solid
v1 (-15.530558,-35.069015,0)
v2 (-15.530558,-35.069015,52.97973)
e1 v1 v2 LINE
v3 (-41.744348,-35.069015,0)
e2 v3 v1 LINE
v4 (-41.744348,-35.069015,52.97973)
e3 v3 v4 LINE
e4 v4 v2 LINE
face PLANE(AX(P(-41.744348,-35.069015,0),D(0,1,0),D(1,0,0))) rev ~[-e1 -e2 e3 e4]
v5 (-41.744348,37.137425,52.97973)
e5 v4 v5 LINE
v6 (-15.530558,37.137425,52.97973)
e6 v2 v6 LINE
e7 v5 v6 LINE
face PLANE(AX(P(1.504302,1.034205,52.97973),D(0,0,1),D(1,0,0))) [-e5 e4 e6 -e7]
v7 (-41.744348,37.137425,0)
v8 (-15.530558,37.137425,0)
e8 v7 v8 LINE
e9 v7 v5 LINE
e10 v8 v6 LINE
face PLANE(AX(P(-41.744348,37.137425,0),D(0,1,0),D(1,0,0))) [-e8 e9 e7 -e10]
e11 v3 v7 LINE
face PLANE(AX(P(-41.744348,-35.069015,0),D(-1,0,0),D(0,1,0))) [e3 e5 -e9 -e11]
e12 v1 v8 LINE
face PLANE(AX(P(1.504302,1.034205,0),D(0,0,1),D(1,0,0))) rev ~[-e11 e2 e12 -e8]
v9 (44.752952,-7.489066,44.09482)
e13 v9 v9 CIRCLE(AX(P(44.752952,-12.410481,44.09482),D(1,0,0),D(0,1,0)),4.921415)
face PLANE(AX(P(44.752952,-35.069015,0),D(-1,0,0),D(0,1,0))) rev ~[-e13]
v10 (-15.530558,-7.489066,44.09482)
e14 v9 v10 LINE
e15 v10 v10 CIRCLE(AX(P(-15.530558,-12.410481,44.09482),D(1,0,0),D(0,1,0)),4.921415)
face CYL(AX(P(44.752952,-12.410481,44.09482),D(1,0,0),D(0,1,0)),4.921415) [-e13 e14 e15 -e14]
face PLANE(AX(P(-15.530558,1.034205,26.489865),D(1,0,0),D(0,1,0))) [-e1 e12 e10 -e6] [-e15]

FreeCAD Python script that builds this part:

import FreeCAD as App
import Part
import Sketcher

V = App.Vector
Q = App.Units.Quantity

doc = App.newDocument("Part")
body = doc.addObject("PartDesign::Body", "Body")

# Sketch on XY plane
sketch1 = body.newObject("Sketcher::SketchObject", "Sketch")
sketch1.AttachmentSupport = (doc.getObject("XY_Plane"), [""])
sketch1.MapMode = "FlatFace"
sketch1.addGeometry([
    Part.LineSegment(V(-41.744348, 37.137425, 0), V(-41.744348, -35.069015, 0)),
    Part.LineSegment(V(-41.744348, -35.069015, 0), V(44.752952, -35.069015, 0)),
    Part.LineSegment(V(44.752952, -35.069015, 0), V(44.752952, 37.137425, 0)),
    Part.LineSegment(V(44.752952, 37.137425, 0), V(-41.744348, 37.137425, 0)),
], False)
sketch1.addConstraint([
    Sketcher.Constraint("Coincident", 0, 2, 1, 1),
    Sketcher.Constraint("Coincident", 1, 2, 2, 1),
    Sketcher.Constraint("Coincident", 2, 2, 3, 1),
    Sketcher.Constraint("Coincident", 3, 2, 0, 1),
    Sketcher.Constraint("Vertical", 0),
    Sketcher.Constraint("Horizontal", 1),
    Sketcher.Constraint("Vertical", 2),
    Sketcher.Constraint("Horizontal", 3),
    Sketcher.Constraint("DistanceX", 1, 1, 1, 2, Q("86.4973 mm")),
    Sketcher.Constraint("DistanceY", 0, 2, 0, 1, Q("72.206441 mm")),
    Sketcher.Constraint("DistanceX", 0, 2, -1, 1, Q("41.744348 mm")),
    Sketcher.Constraint("DistanceY", 0, 2, -1, 1, Q("35.069015 mm")),
])
pad1 = body.newObject("PartDesign::Pad", "Pad")
pad1.Profile = sketch1
pad1.Length = 52.97973

# Sketch on YZ plane
sketch2 = body.newObject("Sketcher::SketchObject", "Sketch001")
sketch2.AttachmentSupport = (doc.getObject("YZ_Plane"), [""])
sketch2.MapMode = "FlatFace"
sketch2.AttachmentOffset = App.Placement(V(0, 0, 44.752952), App.Rotation())
sketch2.addGeometry([
    Part.LineSegment(V(-35.069015, 52.97973, 0), V(-35.069015, 0, 0)),  # 0
    Part.LineSegment(V(-35.069015, 0, 0), V(37.137425, 0, 0)),  # 1
    Part.LineSegment(V(37.137425, 0, 0), V(37.137425, 52.97973, 0)),  # 2
    Part.LineSegment(V(37.137425, 52.97973, 0), V(-35.069015, 52.97973, 0)),  # 3
    Part.Circle(V(-12.410481, 44.09482, 0), V(0, 0, 1), 4.921415),  # 4
], False)
sketch2.addConstraint([
    Sketcher.Constraint("Coincident", 0, 2, 1, 1),
    Sketcher.Constraint("Coincident", 1, 2, 2, 1),
    Sketcher.Constraint("Coincident", 2, 2, 3, 1),
    Sketcher.Constraint("Coincident", 3, 2, 0, 1),
    Sketcher.Constraint("Vertical", 0),
    Sketcher.Constraint("Horizontal", 1),
    Sketcher.Constraint("Vertical", 2),
    Sketcher.Constraint("Horizontal", 3),
    Sketcher.Constraint("PointOnObject", 0, 2, -1),
    Sketcher.Constraint("Diameter", 4, Q("9.84283 mm")),
    Sketcher.Constraint("DistanceX", 1, 1, 1, 2, Q("72.206441 mm")),
    Sketcher.Constraint("DistanceY", 0, 2, 0, 1, Q("52.97973 mm")),
    Sketcher.Constraint("DistanceX", 4, 3, -1, 1, Q("12.410481 mm")),
    Sketcher.Constraint("DistanceY", -1, 1, 4, 3, Q("44.09482 mm")),
    Sketcher.Constraint("DistanceX", 0, 2, -1, 1, Q("35.069015 mm")),
])
pocket1 = body.newObject("PartDesign::Pocket", "Pocket")
pocket1.Profile = sketch2
pocket1.Length = 60.28351

doc.recompute()
